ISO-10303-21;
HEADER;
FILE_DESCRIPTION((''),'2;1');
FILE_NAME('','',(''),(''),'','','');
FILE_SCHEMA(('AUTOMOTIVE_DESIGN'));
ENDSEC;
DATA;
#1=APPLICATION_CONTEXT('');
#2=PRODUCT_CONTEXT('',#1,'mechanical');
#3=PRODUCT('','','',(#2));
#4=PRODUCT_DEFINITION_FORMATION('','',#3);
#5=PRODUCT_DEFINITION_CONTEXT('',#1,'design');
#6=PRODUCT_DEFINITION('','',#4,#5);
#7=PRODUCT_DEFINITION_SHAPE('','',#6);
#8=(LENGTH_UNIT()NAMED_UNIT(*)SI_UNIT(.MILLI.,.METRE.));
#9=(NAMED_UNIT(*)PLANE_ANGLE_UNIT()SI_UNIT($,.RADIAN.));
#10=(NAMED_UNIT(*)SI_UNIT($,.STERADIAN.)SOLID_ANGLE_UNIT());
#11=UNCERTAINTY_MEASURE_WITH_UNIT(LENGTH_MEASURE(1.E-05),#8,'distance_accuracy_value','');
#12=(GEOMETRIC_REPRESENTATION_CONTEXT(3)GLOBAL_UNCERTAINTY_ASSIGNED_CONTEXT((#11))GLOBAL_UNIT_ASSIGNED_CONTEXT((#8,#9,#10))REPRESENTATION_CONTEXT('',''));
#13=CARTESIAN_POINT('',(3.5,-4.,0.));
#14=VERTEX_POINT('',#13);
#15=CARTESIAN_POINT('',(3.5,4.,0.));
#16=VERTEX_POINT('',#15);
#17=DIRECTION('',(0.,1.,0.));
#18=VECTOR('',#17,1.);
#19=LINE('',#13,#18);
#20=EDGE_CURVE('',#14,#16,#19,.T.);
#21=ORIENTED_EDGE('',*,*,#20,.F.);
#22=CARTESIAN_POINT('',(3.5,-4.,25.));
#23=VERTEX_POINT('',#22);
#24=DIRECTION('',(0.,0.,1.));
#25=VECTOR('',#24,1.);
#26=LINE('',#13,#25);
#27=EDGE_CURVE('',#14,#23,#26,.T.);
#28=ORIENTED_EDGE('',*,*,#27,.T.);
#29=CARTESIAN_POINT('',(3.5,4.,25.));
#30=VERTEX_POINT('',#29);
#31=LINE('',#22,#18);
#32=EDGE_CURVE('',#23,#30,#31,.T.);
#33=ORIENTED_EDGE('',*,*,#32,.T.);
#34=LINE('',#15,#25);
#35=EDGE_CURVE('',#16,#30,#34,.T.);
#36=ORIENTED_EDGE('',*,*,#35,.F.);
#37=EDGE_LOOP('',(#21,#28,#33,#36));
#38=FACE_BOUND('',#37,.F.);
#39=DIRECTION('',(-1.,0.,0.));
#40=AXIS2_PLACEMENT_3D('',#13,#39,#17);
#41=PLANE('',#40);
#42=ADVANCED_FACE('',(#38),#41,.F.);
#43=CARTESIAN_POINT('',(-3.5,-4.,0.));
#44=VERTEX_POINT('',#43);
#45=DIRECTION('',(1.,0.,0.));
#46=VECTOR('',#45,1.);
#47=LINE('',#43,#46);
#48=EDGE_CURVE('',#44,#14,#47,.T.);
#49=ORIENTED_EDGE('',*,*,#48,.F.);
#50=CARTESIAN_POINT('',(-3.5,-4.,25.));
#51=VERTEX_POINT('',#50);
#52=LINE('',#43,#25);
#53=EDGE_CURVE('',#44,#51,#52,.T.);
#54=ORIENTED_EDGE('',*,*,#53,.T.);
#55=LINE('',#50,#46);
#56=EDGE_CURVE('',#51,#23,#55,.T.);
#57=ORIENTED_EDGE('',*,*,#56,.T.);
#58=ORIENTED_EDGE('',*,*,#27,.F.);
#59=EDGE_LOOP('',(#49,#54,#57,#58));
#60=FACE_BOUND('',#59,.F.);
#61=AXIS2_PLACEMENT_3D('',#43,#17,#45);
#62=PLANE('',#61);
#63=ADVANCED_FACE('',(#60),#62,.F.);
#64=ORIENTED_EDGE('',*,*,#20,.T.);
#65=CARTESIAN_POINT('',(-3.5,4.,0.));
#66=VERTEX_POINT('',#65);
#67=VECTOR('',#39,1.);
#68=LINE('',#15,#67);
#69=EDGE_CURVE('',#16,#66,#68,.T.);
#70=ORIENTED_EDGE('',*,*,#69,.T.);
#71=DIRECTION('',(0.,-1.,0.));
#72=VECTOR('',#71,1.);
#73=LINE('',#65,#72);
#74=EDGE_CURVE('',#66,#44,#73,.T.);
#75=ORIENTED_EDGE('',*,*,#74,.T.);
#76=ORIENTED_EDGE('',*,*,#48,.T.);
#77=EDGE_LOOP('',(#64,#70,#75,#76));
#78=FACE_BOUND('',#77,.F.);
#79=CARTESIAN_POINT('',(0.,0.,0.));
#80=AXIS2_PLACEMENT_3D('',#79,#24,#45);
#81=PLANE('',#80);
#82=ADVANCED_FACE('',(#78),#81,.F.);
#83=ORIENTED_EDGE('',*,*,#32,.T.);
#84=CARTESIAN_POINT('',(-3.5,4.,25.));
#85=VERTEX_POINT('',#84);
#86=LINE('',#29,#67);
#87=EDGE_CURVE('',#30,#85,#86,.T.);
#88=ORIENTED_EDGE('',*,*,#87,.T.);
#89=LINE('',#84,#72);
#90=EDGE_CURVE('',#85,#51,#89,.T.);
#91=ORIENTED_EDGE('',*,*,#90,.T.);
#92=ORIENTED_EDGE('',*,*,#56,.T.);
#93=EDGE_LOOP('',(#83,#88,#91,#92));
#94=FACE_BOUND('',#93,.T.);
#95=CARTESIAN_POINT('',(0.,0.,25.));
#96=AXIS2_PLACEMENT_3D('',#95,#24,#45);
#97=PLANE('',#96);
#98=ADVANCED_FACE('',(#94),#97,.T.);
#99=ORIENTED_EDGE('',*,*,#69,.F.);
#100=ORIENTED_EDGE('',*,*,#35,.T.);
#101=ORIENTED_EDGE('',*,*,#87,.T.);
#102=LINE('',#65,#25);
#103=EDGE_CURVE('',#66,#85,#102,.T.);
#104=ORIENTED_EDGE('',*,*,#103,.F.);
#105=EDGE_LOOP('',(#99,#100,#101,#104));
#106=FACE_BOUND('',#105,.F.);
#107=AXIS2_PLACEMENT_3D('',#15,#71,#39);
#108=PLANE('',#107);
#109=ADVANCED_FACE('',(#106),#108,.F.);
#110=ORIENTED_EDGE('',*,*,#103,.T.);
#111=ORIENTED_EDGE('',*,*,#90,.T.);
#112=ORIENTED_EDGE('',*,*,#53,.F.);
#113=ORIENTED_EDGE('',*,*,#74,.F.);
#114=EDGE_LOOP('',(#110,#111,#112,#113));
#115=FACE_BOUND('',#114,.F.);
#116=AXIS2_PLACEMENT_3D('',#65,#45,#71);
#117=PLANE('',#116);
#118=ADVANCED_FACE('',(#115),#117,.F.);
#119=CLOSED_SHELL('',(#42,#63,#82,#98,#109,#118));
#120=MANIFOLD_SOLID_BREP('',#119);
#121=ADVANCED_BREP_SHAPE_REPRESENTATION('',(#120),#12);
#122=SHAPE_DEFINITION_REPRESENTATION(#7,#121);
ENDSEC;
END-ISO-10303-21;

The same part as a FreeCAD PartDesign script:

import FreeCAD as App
import Part
import Sketcher

V = App.Vector
Q = App.Units.Quantity


def add_polygon(sketch, points):
    """Adds a closed chain of lines whose ends are joined by coincident constraints."""
    first, n = sketch.GeometryCount, len(points)
    for a, b in zip(points, points[1:] + points[:1]):
        sketch.addGeometry(Part.LineSegment(App.Vector(*a, 0), App.Vector(*b, 0)), False)
    for i in range(n):
        sketch.addConstraint(Sketcher.Constraint("Coincident", first + i, 2, first + (i + 1) % n, 1))

doc = App.newDocument("Part")
params = doc.addObject("Spreadsheet::Sheet", "Params")
for row, (alias, value) in enumerate([
    ("sketch1_width", "7 mm"),
    ("sketch1_height", "8 mm"),
    ("pad1_length", "25 mm"),
], start=1):
    params.set(f"A{row}", alias)
    params.set(f"B{row}", "=" + value)
    params.setAlias(f"B{row}", alias)

body = doc.addObject("PartDesign::Body", "Body")

sketch1 = body.newObject("Sketcher::SketchObject", "Sketch")
sketch1.AttachmentSupport = (doc.getObject("XY_Plane"), [""])
sketch1.MapMode = "FlatFace"
add_polygon(sketch1, [(-4, 4), (-4, -4), (4, -4), (4, 4)])
sketch1.addConstraint([
    Sketcher.Constraint("Vertical", 0),
    Sketcher.Constraint("Horizontal", 1),
    Sketcher.Constraint("Vertical", 2),
    Sketcher.Constraint("Horizontal", 3),
    Sketcher.Constraint("Symmetric", 0, 2, 2, 2, -1, 1),
    Sketcher.Constraint("DistanceX", 1, 1, 1, 2, Q("7 mm")),
    Sketcher.Constraint("DistanceY", 0, 2, 0, 1, Q("8 mm")),
])
sketch1.setExpression("Constraints[9]", "Params.sketch1_width")
sketch1.setExpression("Constraints[10]", "Params.sketch1_height")
pad1 = body.newObject("PartDesign::Pad", "Pad")
pad1.Profile = sketch1
pad1.setExpression("Length", "Params.pad1_length")

doc.recompute()
